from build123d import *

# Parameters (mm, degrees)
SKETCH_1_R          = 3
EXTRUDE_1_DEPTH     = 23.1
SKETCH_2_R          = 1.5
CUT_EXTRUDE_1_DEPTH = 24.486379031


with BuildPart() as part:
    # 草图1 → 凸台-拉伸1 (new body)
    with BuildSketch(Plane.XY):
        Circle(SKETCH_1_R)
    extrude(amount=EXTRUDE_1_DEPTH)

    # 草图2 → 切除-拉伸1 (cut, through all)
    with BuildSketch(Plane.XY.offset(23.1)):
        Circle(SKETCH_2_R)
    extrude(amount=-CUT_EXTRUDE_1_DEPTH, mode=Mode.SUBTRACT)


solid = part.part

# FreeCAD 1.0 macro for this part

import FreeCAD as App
import Part
import Sketcher

doc = App.newDocument("Part")
body = doc.addObject("PartDesign::Body", "Body")

# Sketch on XY plane
sketch1 = body.newObject("Sketcher::SketchObject", "Sketch")
sketch1.AttachmentSupport = (doc.getObject("XY_Plane"), [""])
sketch1.MapMode = "FlatFace"
sketch1.addGeometry(Part.Circle(App.Vector(0, 0, 0), App.Vector(0, 0, 1), 3), False)
sketch1.addConstraint(Sketcher.Constraint("Coincident", 0, 3, -1, 1))
sketch1.addConstraint(Sketcher.Constraint("Diameter", 0, 6.0))
pad1 = body.newObject("PartDesign::Pad", "Pad")
pad1.Profile = sketch1
pad1.Length = 23.1

# Sketch on XY plane
sketch2 = body.newObject("Sketcher::SketchObject", "Sketch001")
sketch2.AttachmentSupport = (doc.getObject("XY_Plane"), [""])
sketch2.MapMode = "FlatFace"
sketch2.AttachmentOffset = App.Placement(App.Vector(0, 0, 23.1), App.Rotation())
sketch2.addGeometry(Part.Circle(App.Vector(0, 0, 0), App.Vector(0, 0, 1), 1.5), False)
sketch2.addConstraint(Sketcher.Constraint("Coincident", 0, 3, -1, 1))
sketch2.addConstraint(Sketcher.Constraint("Diameter", 0, 3.0))
pocket1 = body.newObject("PartDesign::Pocket", "Pocket")
pocket1.Profile = sketch2
pocket1.Type = "ThroughAll"

doc.recompute()
